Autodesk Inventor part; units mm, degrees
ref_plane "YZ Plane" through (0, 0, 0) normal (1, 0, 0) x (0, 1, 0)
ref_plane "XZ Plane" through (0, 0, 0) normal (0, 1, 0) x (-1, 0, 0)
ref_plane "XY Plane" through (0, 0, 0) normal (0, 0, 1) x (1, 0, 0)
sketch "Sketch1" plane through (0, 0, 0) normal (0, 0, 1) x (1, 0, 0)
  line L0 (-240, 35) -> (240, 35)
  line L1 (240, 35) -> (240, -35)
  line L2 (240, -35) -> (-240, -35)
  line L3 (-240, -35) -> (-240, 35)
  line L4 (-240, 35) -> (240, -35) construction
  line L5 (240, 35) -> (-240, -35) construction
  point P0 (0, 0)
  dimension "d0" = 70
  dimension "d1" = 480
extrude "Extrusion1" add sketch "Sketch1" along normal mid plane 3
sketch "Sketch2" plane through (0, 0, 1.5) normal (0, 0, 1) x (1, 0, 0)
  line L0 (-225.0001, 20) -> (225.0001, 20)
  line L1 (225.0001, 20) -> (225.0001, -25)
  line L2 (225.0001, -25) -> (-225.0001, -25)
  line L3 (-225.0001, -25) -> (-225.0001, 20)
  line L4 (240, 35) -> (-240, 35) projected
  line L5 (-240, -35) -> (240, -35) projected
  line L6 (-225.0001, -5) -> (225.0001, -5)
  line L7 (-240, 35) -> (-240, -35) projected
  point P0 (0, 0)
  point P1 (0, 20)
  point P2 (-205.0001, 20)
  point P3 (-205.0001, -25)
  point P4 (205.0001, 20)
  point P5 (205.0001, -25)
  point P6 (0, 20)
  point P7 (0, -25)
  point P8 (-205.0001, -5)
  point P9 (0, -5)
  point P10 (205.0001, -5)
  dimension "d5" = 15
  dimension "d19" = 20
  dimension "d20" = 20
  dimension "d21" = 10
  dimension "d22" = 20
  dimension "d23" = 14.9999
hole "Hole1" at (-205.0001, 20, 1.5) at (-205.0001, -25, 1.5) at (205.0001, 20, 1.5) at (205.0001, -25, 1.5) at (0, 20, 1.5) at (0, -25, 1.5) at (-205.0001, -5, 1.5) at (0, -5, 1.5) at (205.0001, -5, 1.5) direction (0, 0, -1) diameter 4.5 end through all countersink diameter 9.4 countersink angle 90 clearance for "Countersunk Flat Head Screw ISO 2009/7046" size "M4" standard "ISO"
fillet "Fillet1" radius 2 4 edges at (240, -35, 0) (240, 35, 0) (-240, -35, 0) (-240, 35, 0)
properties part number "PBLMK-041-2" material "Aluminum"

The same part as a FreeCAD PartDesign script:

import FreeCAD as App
import Part
import Sketcher

V = App.Vector


def edges_at(feature, points):
    """Names of the edges that pass closest to the given points."""
    edges = feature.Shape.Edges
    near = lambda p: min(range(len(edges)), key=lambda i: edges[i].distToShape(Part.Vertex(*p))[0])
    return sorted({f"Edge{near(p) + 1}" for p in points})


def add_polygon(sketch, points):
    """Adds a closed chain of lines whose ends are joined by coincident constraints."""
    first, n = sketch.GeometryCount, len(points)
    for a, b in zip(points, points[1:] + points[:1]):
        sketch.addGeometry(Part.LineSegment(App.Vector(*a, 0), App.Vector(*b, 0)), False)
    for i in range(n):
        sketch.addConstraint(Sketcher.Constraint("Coincident", first + i, 2, first + (i + 1) % n, 1))

doc = App.newDocument("Part")
body = doc.addObject("PartDesign::Body", "Body")

sketch1 = body.newObject("Sketcher::SketchObject", "Sketch")
sketch1.AttachmentSupport = (doc.getObject("XY_Plane"), [""])
sketch1.MapMode = "FlatFace"
add_polygon(sketch1, [(240, 35), (-240, 35), (-240, -35), (240, -35)])
sketch1.addConstraint([
    Sketcher.Constraint("Horizontal", 0),
    Sketcher.Constraint("Vertical", 1),
    Sketcher.Constraint("Horizontal", 2),
    Sketcher.Constraint("Vertical", 3),
    Sketcher.Constraint("Symmetric", 0, 2, 2, 2, -1, 1),
    Sketcher.Constraint("DistanceX", 0, 2, 0, 1, 480.0),
    Sketcher.Constraint("DistanceY", 1, 2, 1, 1, 70.0),
])
pad1 = body.newObject("PartDesign::Pad", "Pad")
pad1.Profile = sketch1
pad1.Length = 3
pad1.Midplane = True

sketch2 = body.newObject("Sketcher::SketchObject", "Sketch001")
sketch2.AttachmentSupport = (doc.getObject("XY_Plane"), [""])
sketch2.MapMode = "FlatFace"
sketch2.AttachmentOffset = App.Placement(V(0, 0, 1.5), App.Rotation())
sketch2.addGeometry([
    Part.Circle(V(-205, 20, 0), V(0, 0, 1), 2.2),
    Part.Circle(V(-205, -25, 0), V(0, 0, 1), 2.2),
    Part.Circle(V(205, 20, 0), V(0, 0, 1), 2.2),
    Part.Circle(V(205, -25, 0), V(0, 0, 1), 2.2),
    Part.Circle(V(0, 20, 0), V(0, 0, 1), 2.2),
    Part.Circle(V(0, -25, 0), V(0, 0, 1), 2.2),
    Part.Circle(V(-205, -5, 0), V(0, 0, 1), 2.2),
    Part.Circle(V(0, -5, 0), V(0, 0, 1), 2.2),
    Part.Circle(V(205, -5, 0), V(0, 0, 1), 2.2),
], False)
sketch2.addConstraint([
    Sketcher.Constraint("Equal", 0, 1),
    Sketcher.Constraint("Equal", 1, 2),
    Sketcher.Constraint("Equal", 2, 3),
    Sketcher.Constraint("Equal", 3, 4),
    Sketcher.Constraint("Equal", 4, 5),
    Sketcher.Constraint("Equal", 5, 6),
    Sketcher.Constraint("Equal", 6, 7),
    Sketcher.Constraint("Equal", 7, 8),
    Sketcher.Constraint("Symmetric", 0, 3, 2, 3, -2),
    Sketcher.Constraint("Symmetric", 1, 3, 3, 3, -2),
    Sketcher.Constraint("Symmetric", 6, 3, 8, 3, -2),
    Sketcher.Constraint("PointOnObject", 4, 3, -2),
    Sketcher.Constraint("PointOnObject", 5, 3, -2),
    Sketcher.Constraint("PointOnObject", 7, 3, -2),
    Sketcher.Constraint("Horizontal", 2, 3, 4, 3),
    Sketcher.Constraint("Horizontal", 3, 3, 5, 3),
    Sketcher.Constraint("Horizontal", 6, 3, 7, 3),
    Sketcher.Constraint("Vertical", 0, 3, 1, 3),
    Sketcher.Constraint("Vertical", 1, 3, 6, 3),
    Sketcher.Constraint("Diameter", 0, 4.5),
    Sketcher.Constraint("DistanceX", 0, 3, -1, 1, 205.0),
    Sketcher.Constraint("DistanceY", -1, 1, 0, 3, 20.0),
    Sketcher.Constraint("DistanceY", 1, 3, -1, 1, 25.0),
    Sketcher.Constraint("DistanceY", 6, 3, -1, 1, 5.0),
])
doc.recompute()
hole = body.newObject("PartDesign::Hole", "Hole")
hole.Profile = sketch2
hole.ThreadType = "None"
hole.Diameter = 4.5
hole.DepthType = "ThroughAll"
hole.HoleCutType = "Countersink"
hole.HoleCutDiameter = 9.4
hole.HoleCutCountersinkAngle = 90
doc.recompute()

fillet = body.newObject("PartDesign::Fillet", "Fillet")
fillet.Base = (hole, edges_at(hole, [
    (240, -35, 0),
    (240, 35, 0),
    (-240, -35, 0),
    (-240, 35, 0),
]))
fillet.Radius = 2

doc.recompute()
